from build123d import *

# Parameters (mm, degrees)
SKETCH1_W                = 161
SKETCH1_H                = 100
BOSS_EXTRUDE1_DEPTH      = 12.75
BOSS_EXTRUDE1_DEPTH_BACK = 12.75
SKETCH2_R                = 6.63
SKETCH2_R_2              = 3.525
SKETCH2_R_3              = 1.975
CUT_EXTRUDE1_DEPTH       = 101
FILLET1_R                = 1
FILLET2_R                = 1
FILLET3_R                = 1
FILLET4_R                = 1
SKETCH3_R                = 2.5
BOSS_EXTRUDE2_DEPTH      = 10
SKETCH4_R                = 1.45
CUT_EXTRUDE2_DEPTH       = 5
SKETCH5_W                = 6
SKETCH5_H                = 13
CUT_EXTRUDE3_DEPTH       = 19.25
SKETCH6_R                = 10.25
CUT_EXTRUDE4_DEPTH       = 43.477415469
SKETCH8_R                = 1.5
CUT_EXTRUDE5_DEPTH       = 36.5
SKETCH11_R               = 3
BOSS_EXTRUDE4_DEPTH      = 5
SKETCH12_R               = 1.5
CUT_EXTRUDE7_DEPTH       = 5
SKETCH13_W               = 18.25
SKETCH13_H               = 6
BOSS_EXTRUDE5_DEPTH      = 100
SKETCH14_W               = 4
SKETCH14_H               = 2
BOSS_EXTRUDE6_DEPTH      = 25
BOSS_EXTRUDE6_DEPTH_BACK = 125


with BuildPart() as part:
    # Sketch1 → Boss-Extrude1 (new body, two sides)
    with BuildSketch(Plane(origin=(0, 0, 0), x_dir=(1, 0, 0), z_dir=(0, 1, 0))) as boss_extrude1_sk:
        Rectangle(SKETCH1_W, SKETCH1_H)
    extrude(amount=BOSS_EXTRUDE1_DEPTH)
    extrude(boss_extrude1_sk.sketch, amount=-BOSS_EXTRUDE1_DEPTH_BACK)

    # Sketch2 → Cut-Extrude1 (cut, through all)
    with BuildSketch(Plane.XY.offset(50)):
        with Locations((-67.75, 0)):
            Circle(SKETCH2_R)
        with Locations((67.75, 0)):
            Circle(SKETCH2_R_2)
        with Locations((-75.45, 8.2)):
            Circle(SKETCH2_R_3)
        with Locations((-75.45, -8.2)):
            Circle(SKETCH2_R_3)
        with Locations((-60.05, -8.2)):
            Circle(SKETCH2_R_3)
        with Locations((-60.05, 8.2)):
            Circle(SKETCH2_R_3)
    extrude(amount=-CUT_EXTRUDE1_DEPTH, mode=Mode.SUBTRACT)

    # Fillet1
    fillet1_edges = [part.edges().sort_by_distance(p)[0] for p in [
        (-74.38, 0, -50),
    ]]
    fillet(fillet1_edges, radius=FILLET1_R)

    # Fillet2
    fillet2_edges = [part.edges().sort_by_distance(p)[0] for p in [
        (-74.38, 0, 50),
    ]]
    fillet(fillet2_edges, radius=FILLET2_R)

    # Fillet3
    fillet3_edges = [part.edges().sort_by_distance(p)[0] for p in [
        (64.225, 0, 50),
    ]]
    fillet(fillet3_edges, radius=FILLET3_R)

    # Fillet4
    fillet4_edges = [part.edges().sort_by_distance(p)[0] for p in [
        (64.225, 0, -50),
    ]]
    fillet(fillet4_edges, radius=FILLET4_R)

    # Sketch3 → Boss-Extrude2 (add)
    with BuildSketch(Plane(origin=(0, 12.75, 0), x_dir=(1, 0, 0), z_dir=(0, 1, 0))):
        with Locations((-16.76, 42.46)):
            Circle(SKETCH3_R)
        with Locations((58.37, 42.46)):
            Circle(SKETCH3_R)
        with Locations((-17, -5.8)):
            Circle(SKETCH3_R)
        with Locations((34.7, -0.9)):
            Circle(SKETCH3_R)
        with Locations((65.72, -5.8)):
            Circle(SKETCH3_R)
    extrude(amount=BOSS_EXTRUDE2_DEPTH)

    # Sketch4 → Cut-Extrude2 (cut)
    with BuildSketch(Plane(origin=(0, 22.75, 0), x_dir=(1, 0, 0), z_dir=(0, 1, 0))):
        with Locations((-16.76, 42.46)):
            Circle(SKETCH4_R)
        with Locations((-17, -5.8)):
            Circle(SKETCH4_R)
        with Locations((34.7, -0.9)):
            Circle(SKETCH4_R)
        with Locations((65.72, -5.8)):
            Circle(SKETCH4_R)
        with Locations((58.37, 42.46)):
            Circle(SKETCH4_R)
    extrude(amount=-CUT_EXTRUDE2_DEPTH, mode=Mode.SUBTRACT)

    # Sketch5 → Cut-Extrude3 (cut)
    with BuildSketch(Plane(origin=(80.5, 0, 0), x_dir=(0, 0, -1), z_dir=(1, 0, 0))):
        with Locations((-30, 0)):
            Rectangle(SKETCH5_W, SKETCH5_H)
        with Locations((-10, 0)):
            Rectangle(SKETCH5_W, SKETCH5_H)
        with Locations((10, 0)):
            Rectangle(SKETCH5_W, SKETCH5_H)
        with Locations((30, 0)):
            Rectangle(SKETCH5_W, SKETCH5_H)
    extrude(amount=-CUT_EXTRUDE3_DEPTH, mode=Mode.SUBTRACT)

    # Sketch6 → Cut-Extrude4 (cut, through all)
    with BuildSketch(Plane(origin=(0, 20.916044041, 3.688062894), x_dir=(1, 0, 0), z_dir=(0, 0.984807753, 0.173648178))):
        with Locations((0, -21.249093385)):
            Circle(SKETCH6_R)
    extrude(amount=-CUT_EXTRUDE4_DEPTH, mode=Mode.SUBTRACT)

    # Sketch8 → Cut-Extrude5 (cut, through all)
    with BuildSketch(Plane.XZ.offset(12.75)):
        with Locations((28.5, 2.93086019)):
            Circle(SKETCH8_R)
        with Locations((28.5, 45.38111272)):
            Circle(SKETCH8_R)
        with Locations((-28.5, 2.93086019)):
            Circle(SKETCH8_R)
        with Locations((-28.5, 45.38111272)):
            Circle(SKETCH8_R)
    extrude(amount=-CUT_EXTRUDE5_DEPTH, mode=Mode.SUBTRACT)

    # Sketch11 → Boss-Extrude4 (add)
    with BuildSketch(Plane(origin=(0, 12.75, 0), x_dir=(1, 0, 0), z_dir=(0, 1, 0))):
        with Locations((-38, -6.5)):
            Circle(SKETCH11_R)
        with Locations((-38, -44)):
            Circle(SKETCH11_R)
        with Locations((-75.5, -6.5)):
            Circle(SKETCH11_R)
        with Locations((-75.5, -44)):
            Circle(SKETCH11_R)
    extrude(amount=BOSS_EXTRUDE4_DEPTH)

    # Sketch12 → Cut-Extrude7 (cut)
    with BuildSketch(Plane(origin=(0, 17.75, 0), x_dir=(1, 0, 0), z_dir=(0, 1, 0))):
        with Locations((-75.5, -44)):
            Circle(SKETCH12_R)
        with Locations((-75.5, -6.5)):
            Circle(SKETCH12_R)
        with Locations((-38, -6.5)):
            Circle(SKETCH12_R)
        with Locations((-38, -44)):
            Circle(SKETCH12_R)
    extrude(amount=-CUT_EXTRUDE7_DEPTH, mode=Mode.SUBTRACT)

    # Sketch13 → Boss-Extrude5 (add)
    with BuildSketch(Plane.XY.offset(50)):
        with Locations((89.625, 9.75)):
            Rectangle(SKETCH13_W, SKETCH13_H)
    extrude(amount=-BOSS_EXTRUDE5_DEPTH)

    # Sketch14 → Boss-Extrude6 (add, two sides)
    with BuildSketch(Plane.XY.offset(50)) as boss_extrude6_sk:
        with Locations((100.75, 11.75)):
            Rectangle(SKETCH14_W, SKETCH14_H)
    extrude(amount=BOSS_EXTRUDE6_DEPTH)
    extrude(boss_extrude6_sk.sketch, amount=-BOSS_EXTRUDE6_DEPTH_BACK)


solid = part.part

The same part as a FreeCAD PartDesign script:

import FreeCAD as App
import Part
import Sketcher
from FreeCAD import Vector


def edges_at(feature, points):
    """Names of the edges that pass closest to the given points."""
    edges = feature.Shape.Edges
    near = lambda p: min(range(len(edges)), key=lambda i: edges[i].distToShape(Part.Vertex(*p))[0])
    return sorted({f"Edge{near(p) + 1}" for p in points})

doc = App.newDocument("Part")
body = doc.addObject("PartDesign::Body", "Body")

# Sketch on XZ plane
sketch1 = body.newObject("Sketcher::SketchObject", "Sketch")
sketch1.AttachmentSupport = (doc.getObject("XZ_Plane"), [""])
sketch1.MapMode = "FlatFace"
sketch1.addGeometry([
    Part.LineSegment(Vector(-80, -50, 0), Vector(-80, 50, 0)),
    Part.LineSegment(Vector(-80, 50, 0), Vector(80, 50, 0)),
    Part.LineSegment(Vector(80, 50, 0), Vector(80, -50, 0)),
    Part.LineSegment(Vector(80, -50, 0), Vector(-80, -50, 0)),
], False)
sketch1.addConstraint([
    Sketcher.Constraint("Coincident", 0, 2, 1, 1),
    Sketcher.Constraint("Coincident", 1, 2, 2, 1),
    Sketcher.Constraint("Coincident", 2, 2, 3, 1),
    Sketcher.Constraint("Coincident", 3, 2, 0, 1),
    Sketcher.Constraint("Vertical", 0),
    Sketcher.Constraint("Horizontal", 1),
    Sketcher.Constraint("Vertical", 2),
    Sketcher.Constraint("Horizontal", 3),
    Sketcher.Constraint("Symmetric", 0, 2, 2, 2, -1, 1),
    Sketcher.Constraint("DistanceX", 1, 1, 1, 2, 161.0),
    Sketcher.Constraint("DistanceY", 0, 1, 0, 2, 100.0),
])
pad1 = body.newObject("PartDesign::Pad", "Pad")
pad1.Profile = sketch1
pad1.Type = "TwoLengths"
pad1.Length = 12.75
pad1.Length2 = 12.75
pad1.Reversed = True

# Sketch on XY plane
sketch2 = body.newObject("Sketcher::SketchObject", "Sketch001")
sketch2.AttachmentSupport = (doc.getObject("XY_Plane"), [""])
sketch2.MapMode = "FlatFace"
sketch2.AttachmentOffset = App.Placement(Vector(0, 0, 50), App.Rotation())
sketch2.addGeometry([
    Part.Circle(Vector(-67.8, 0, 0), Vector(0, 0, 1), 6.6),  # 0
    Part.Circle(Vector(67.8, 0, 0), Vector(0, 0, 1), 3.5),  # 1
    Part.Circle(Vector(-75.5, 8.2, 0), Vector(0, 0, 1), 2),  # 2
    Part.Circle(Vector(-75.5, -8.2, 0), Vector(0, 0, 1), 2),  # 3
    Part.Circle(Vector(-60, -8.2, 0), Vector(0, 0, 1), 2),  # 4
    Part.Circle(Vector(-60, 8.2, 0), Vector(0, 0, 1), 2),  # 5
], False)
sketch2.addConstraint([
    Sketcher.Constraint("Equal", 2, 3),
    Sketcher.Constraint("Equal", 3, 4),
    Sketcher.Constraint("Equal", 4, 5),
    Sketcher.Constraint("Symmetric", 0, 3, 1, 3, -1, 1),
    Sketcher.Constraint("Symmetric", 2, 3, 3, 3, -1),
    Sketcher.Constraint("Symmetric", 4, 3, 5, 3, -1),
    Sketcher.Constraint("PointOnObject", 0, 3, -1),
    Sketcher.Constraint("Horizontal", 3, 3, 4, 3),
    Sketcher.Constraint("Diameter", 0, 13.26),
    Sketcher.Constraint("Diameter", 1, 7.05),
    Sketcher.Constraint("Diameter", 2, 3.95),
    Sketcher.Constraint("DistanceY", -1, 1, 2, 3, 8.2),
    Sketcher.Constraint("DistanceX", 0, 3, 1, 3, 135.5),
    Sketcher.Constraint("DistanceX", 2, 3, 0, 3, 7.7),
    Sketcher.Constraint("DistanceX", 0, 3, 4, 3, 7.7),
])
pocket1 = body.newObject("PartDesign::Pocket", "Pocket")
pocket1.Profile = sketch2
pocket1.Type = "ThroughAll"
doc.recompute()

fillet = body.newObject("PartDesign::Fillet", "Fillet")
fillet.Base = (pocket1, edges_at(pocket1, [(-74.38, 0, -50)]))
fillet.Radius = 1
doc.recompute()

fillet2 = body.newObject("PartDesign::Fillet", "Fillet001")
fillet2.Base = (fillet, edges_at(fillet, [(-74.38, 0, 50)]))
fillet2.Radius = 1
doc.recompute()

fillet3 = body.newObject("PartDesign::Fillet", "Fillet002")
fillet3.Base = (fillet2, edges_at(fillet2, [(64.225, 0, 50)]))
fillet3.Radius = 1
doc.recompute()

fillet4 = body.newObject("PartDesign::Fillet", "Fillet003")
fillet4.Base = (fillet3, edges_at(fillet3, [(64.225, 0, -50)]))
fillet4.Radius = 1

# Sketch on XZ plane
sketch3 = body.newObject("Sketcher::SketchObject", "Sketch002")
sketch3.AttachmentSupport = (doc.getObject("XZ_Plane"), [""])
sketch3.MapMode = "FlatFace"
sketch3.AttachmentOffset = App.Placement(Vector(0, 0, -12.75), App.Rotation())
sketch3.addGeometry([
    Part.Circle(Vector(-16.8, -42.5, 0), Vector(0, 0, 1), 2.5),  # 0
    Part.Circle(Vector(58.4, -42.5, 0), Vector(0, 0, 1), 2.5),  # 1
    Part.Circle(Vector(-17, 5.8, 0), Vector(0, 0, 1), 2.5),  # 2
    Part.Circle(Vector(34.7, 0.9, 0), Vector(0, 0, 1), 2.5),  # 3
    Part.Circle(Vector(65.7, 5.8, 0), Vector(0, 0, 1), 2.5),  # 4
], False)
sketch3.addConstraint([
    Sketcher.Constraint("Equal", 0, 1),
    Sketcher.Constraint("Equal", 1, 2),
    Sketcher.Constraint("Equal", 2, 3),
    Sketcher.Constraint("Equal", 3, 4),
    Sketcher.Constraint("Horizontal", 0, 3, 1, 3),
    Sketcher.Constraint("Horizontal", 2, 3, 4, 3),
    Sketcher.Constraint("Diameter", 0, 5.0),
    Sketcher.Constraint("DistanceX", 2, 3, -1, 1, 17.0),
    Sketcher.Constraint("DistanceY", -1, 1, 2, 3, 5.8),
    Sketcher.Constraint("DistanceX", -1, 1, 3, 3, 34.7),
    Sketcher.Constraint("DistanceY", -1, 1, 3, 3, 0.9),
    Sketcher.Constraint("DistanceX", 0, 3, -1, 1, 16.76),
    Sketcher.Constraint("DistanceY", 0, 3, -1, 1, 42.46),
    Sketcher.Constraint("DistanceX", -1, 1, 1, 3, 58.37),
    Sketcher.Constraint("DistanceX", -1, 1, 4, 3, 65.72),
])
pad2 = body.newObject("PartDesign::Pad", "Pad001")
pad2.Profile = sketch3
pad2.Length = 10
pad2.Reversed = True

# Sketch on XZ plane
sketch4 = body.newObject("Sketcher::SketchObject", "Sketch003")
sketch4.AttachmentSupport = (doc.getObject("XZ_Plane"), [""])
sketch4.MapMode = "FlatFace"
sketch4.AttachmentOffset = App.Placement(Vector(0, 0, -22.75), App.Rotation())
sketch4.addGeometry([
    Part.Circle(Vector(-16.8, -42.5, 0), Vector(0, 0, 1), 1.4),  # 0
    Part.Circle(Vector(-17, 5.8, 0), Vector(0, 0, 1), 1.4),  # 1
    Part.Circle(Vector(34.7, 0.9, 0), Vector(0, 0, 1), 1.4),  # 2
    Part.Circle(Vector(65.7, 5.8, 0), Vector(0, 0, 1), 1.4),  # 3
    Part.Circle(Vector(58.4, -42.5, 0), Vector(0, 0, 1), 1.4),  # 4
], False)
sketch4.addConstraint([
    Sketcher.Constraint("Equal", 0, 1),
    Sketcher.Constraint("Equal", 1, 2),
    Sketcher.Constraint("Equal", 2, 3),
    Sketcher.Constraint("Equal", 3, 4),
    Sketcher.Constraint("Horizontal", 1, 3, 3, 3),
    Sketcher.Constraint("Horizontal", 0, 3, 4, 3),
    Sketcher.Constraint("Diameter", 0, 2.9),
    Sketcher.Constraint("DistanceX", 1, 3, -1, 1, 17.0),
    Sketcher.Constraint("DistanceY", -1, 1, 1, 3, 5.8),
    Sketcher.Constraint("DistanceX", -1, 1, 2, 3, 34.7),
    Sketcher.Constraint("DistanceY", -1, 1, 2, 3, 0.9),
    Sketcher.Constraint("DistanceX", 0, 3, -1, 1, 16.76),
    Sketcher.Constraint("DistanceY", 0, 3, -1, 1, 42.46),
    Sketcher.Constraint("DistanceX", -1, 1, 3, 3, 65.72),
    Sketcher.Constraint("DistanceX", -1, 1, 4, 3, 58.37),
])
pocket2 = body.newObject("PartDesign::Pocket", "Pocket001")
pocket2.Profile = sketch4
pocket2.Length = 5
pocket2.Reversed = True

# Sketch on YZ plane
sketch5 = body.newObject("Sketcher::SketchObject", "Sketch004")
sketch5.AttachmentSupport = (doc.getObject("YZ_Plane"), [""])
sketch5.MapMode = "FlatFace"
sketch5.AttachmentOffset = App.Placement(Vector(0, 0, 80.5), App.Rotation())
sketch5.addGeometry([
    Part.LineSegment(Vector(6, 33, 0), Vector(-6, 33, 0)),  # 0
    Part.LineSegment(Vector(-6, 33, 0), Vector(-6, 27, 0)),  # 1
    Part.LineSegment(Vector(-6, 27, 0), Vector(6, 27, 0)),  # 2
    Part.LineSegment(Vector(6, 27, 0), Vector(6, 33, 0)),  # 3
    Part.LineSegment(Vector(6, 13, 0), Vector(-6, 13, 0)),  # 4
    Part.LineSegment(Vector(-6, 13, 0), Vector(-6, 7, 0)),  # 5
    Part.LineSegment(Vector(-6, 7, 0), Vector(6, 7, 0)),  # 6
    Part.LineSegment(Vector(6, 7, 0), Vector(6, 13, 0)),  # 7
    Part.LineSegment(Vector(6, -7, 0), Vector(-6, -7, 0)),  # 8
    Part.LineSegment(Vector(-6, -7, 0), Vector(-6, -13, 0)),  # 9
    Part.LineSegment(Vector(-6, -13, 0), Vector(6, -13, 0)),  # 10
    Part.LineSegment(Vector(6, -13, 0), Vector(6, -7, 0)),  # 11
    Part.LineSegment(Vector(6, -27, 0), Vector(-6, -27, 0)),  # 12
    Part.LineSegment(Vector(-6, -27, 0), Vector(-6, -33, 0)),  # 13
    Part.LineSegment(Vector(-6, -33, 0), Vector(6, -33, 0)),  # 14
    Part.LineSegment(Vector(6, -33, 0), Vector(6, -27, 0)),  # 15
], False)
sketch5.addConstraint([
    Sketcher.Constraint("Coincident", 0, 2, 1, 1),
    Sketcher.Constraint("Coincident", 1, 2, 2, 1),
    Sketcher.Constraint("Coincident", 2, 2, 3, 1),
    Sketcher.Constraint("Coincident", 3, 2, 0, 1),
    Sketcher.Constraint("Coincident", 4, 2, 5, 1),
    Sketcher.Constraint("Coincident", 5, 2, 6, 1),
    Sketcher.Constraint("Coincident", 6, 2, 7, 1),
    Sketcher.Constraint("Coincident", 7, 2, 4, 1),
    Sketcher.Constraint("Coincident", 8, 2, 9, 1),
    Sketcher.Constraint("Coincident", 9, 2, 10, 1),
    Sketcher.Constraint("Coincident", 10, 2, 11, 1),
    Sketcher.Constraint("Coincident", 11, 2, 8, 1),
    Sketcher.Constraint("Coincident", 12, 2, 13, 1),
    Sketcher.Constraint("Coincident", 13, 2, 14, 1),
    Sketcher.Constraint("Coincident", 14, 2, 15, 1),
    Sketcher.Constraint("Coincident", 15, 2, 12, 1),
    Sketcher.Constraint("Horizontal", 0),
    Sketcher.Constraint("Vertical", 1),
    Sketcher.Constraint("Horizontal", 2),
    Sketcher.Constraint("Vertical", 3),
    Sketcher.Constraint("Horizontal", 4),
    Sketcher.Constraint("Vertical", 5),
    Sketcher.Constraint("Horizontal", 6),
    Sketcher.Constraint("Vertical", 7),
    Sketcher.Constraint("Horizontal", 8),
    Sketcher.Constraint("Vertical", 9),
    Sketcher.Constraint("Horizontal", 10),
    Sketcher.Constraint("Vertical", 11),
    Sketcher.Constraint("Horizontal", 12),
    Sketcher.Constraint("Vertical", 13),
    Sketcher.Constraint("Horizontal", 14),
    Sketcher.Constraint("Vertical", 15),
    Sketcher.Constraint("Symmetric", 6, 2, 8, 2, -1, 1),
    Sketcher.Constraint("Symmetric", 4, 2, 10, 2, -1, 1),
    Sketcher.Constraint("Symmetric", 2, 2, 12, 2, -1, 1),
    Sketcher.Constraint("Symmetric", 0, 2, 14, 2, -1, 1),
    Sketcher.Constraint("Vertical", 1, 2, 4, 2),
    Sketcher.Constraint("Vertical", 3, 2, 6, 2),
    Sketcher.Constraint("Vertical", 5, 2, 8, 2),
    Sketcher.Constraint("Equal", 3, 5),
    Sketcher.Constraint("DistanceX", 0, 2, 0, 1, 13.0),
    Sketcher.Constraint("DistanceY", 1, 2, 1, 1, 6.0),
    Sketcher.Constraint("DistanceY", -1, 1, 0, 2, 33.0),
    Sketcher.Constraint("DistanceY", -1, 1, 4, 2, 13.0),
])
pocket3 = body.newObject("PartDesign::Pocket", "Pocket002")
pocket3.Profile = sketch5
pocket3.Length = 19.25

# Sketch on an angled plane
sketch6 = body.newObject("Sketcher::SketchObject", "Sketch005")
sketch6.Placement = App.Placement(Vector(0, 20.916044, 3.688063), App.Rotation(Vector(1, 0, 0), Vector(0, 0.173648178, -0.984807753), Vector(0, 0.984807753, 0.173648178), "ZXY"))
sketch6.addGeometry(Part.Circle(Vector(0, -21, 0), Vector(0, 0, 1), 10), False)
sketch6.addConstraint([
    Sketcher.Constraint("PointOnObject", 0, 3, -2),
    Sketcher.Constraint("Diameter", 0, 20.5),
    Sketcher.Constraint("DistanceY", 0, 3, -1, 1, 21.249093),
])
pocket4 = body.newObject("PartDesign::Pocket", "Pocket003")
pocket4.Profile = sketch6
pocket4.Type = "ThroughAll"

# Sketch on XZ plane
sketch7 = body.newObject("Sketcher::SketchObject", "Sketch006")
sketch7.AttachmentSupport = (doc.getObject("XZ_Plane"), [""])
sketch7.MapMode = "FlatFace"
sketch7.AttachmentOffset = App.Placement(Vector(0, 0, 12.75), App.Rotation())
sketch7.addGeometry([
    Part.Circle(Vector(28.5, 2.9, 0), Vector(0, 0, 1), 1.5),
    Part.Circle(Vector(28.5, 45.4, 0), Vector(0, 0, 1), 1.5),
    Part.Circle(Vector(-28.5, 2.9, 0), Vector(0, 0, 1), 1.5),
    Part.Circle(Vector(-28.5, 45.4, 0), Vector(0, 0, 1), 1.5),
], False)
sketch7.addConstraint([
    Sketcher.Constraint("Equal", 0, 1),
    Sketcher.Constraint("Equal", 1, 2),
    Sketcher.Constraint("Equal", 2, 3),
    Sketcher.Constraint("Symmetric", 0, 3, 2, 3, -2),
    Sketcher.Constraint("Symmetric", 1, 3, 3, 3, -2),
    Sketcher.Constraint("Vertical", 0, 3, 1, 3),
    Sketcher.Constraint("Diameter", 0, 3.0),
    Sketcher.Constraint("DistanceX", 2, 3, 0, 3, 57.0),
    Sketcher.Constraint("DistanceY", -1, 1, 0, 3, 2.93086),
    Sketcher.Constraint("DistanceY", -1, 1, 1, 3, 45.381113),
])
pocket5 = body.newObject("PartDesign::Pocket", "Pocket004")
pocket5.Profile = sketch7
pocket5.Type = "ThroughAll"

# Sketch on XZ plane
sketch8 = body.newObject("Sketcher::SketchObject", "Sketch007")
sketch8.AttachmentSupport = (doc.getObject("XZ_Plane"), [""])
sketch8.MapMode = "FlatFace"
sketch8.AttachmentOffset = App.Placement(Vector(0, 0, -12.75), App.Rotation())
sketch8.addGeometry([
    Part.Circle(Vector(-38, 6.5, 0), Vector(0, 0, 1), 3),
    Part.Circle(Vector(-38, 44, 0), Vector(0, 0, 1), 3),
    Part.Circle(Vector(-75.5, 6.5, 0), Vector(0, 0, 1), 3),
    Part.Circle(Vector(-75.5, 44, 0), Vector(0, 0, 1), 3),
], False)
sketch8.addConstraint([
    Sketcher.Constraint("Equal", 0, 1),
    Sketcher.Constraint("Equal", 1, 2),
    Sketcher.Constraint("Equal", 2, 3),
    Sketcher.Constraint("Horizontal", 0, 3, 2, 3),
    Sketcher.Constraint("Horizontal", 1, 3, 3, 3),
    Sketcher.Constraint("Vertical", 0, 3, 1, 3),
    Sketcher.Constraint("Vertical", 2, 3, 3, 3),
    Sketcher.Constraint("Diameter", 0, 6.0),
    Sketcher.Constraint("DistanceX", 0, 3, -1, 1, 38.0),
    Sketcher.Constraint("DistanceY", -1, 1, 1, 3, 44.0),
    Sketcher.Constraint("DistanceY", -1, 1, 0, 3, 6.5),
    Sketcher.Constraint("DistanceX", 2, 3, -1, 1, 75.5),
])
pad3 = body.newObject("PartDesign::Pad", "Pad002")
pad3.Profile = sketch8
pad3.Length = 5
pad3.Reversed = True

# Sketch on XZ plane
sketch9 = body.newObject("Sketcher::SketchObject", "Sketch008")
sketch9.AttachmentSupport = (doc.getObject("XZ_Plane"), [""])
sketch9.MapMode = "FlatFace"
sketch9.AttachmentOffset = App.Placement(Vector(0, 0, -17.75), App.Rotation())
sketch9.addGeometry([
    Part.Circle(Vector(-75.5, 44, 0), Vector(0, 0, 1), 1.5),
    Part.Circle(Vector(-75.5, 6.5, 0), Vector(0, 0, 1), 1.5),
    Part.Circle(Vector(-38, 6.5, 0), Vector(0, 0, 1), 1.5),
    Part.Circle(Vector(-38, 44, 0), Vector(0, 0, 1), 1.5),
], False)
sketch9.addConstraint([
    Sketcher.Constraint("Equal", 0, 1),
    Sketcher.Constraint("Equal", 1, 2),
    Sketcher.Constraint("Equal", 2, 3),
    Sketcher.Constraint("Horizontal", 1, 3, 2, 3),
    Sketcher.Constraint("Horizontal", 0, 3, 3, 3),
    Sketcher.Constraint("Vertical", 0, 3, 1, 3),
    Sketcher.Constraint("Vertical", 2, 3, 3, 3),
    Sketcher.Constraint("Diameter", 0, 3.0),
    Sketcher.Constraint("DistanceY", -1, 1, 0, 3, 44.0),
    Sketcher.Constraint("DistanceX", 2, 3, -1, 1, 38.0),
    Sketcher.Constraint("DistanceX", 0, 3, -1, 1, 75.5),
    Sketcher.Constraint("DistanceY", -1, 1, 1, 3, 6.5),
])
pocket6 = body.newObject("PartDesign::Pocket", "Pocket005")
pocket6.Profile = sketch9
pocket6.Length = 5
pocket6.Reversed = True

# Sketch on XY plane
sketch10 = body.newObject("Sketcher::SketchObject", "Sketch009")
sketch10.AttachmentSupport = (doc.getObject("XY_Plane"), [""])
sketch10.MapMode = "FlatFace"
sketch10.AttachmentOffset = App.Placement(Vector(0, 0, 50), App.Rotation())
sketch10.addGeometry([
    Part.LineSegment(Vector(80, 13, 0), Vector(80, 7, 0)),
    Part.LineSegment(Vector(80, 7, 0), Vector(99, 7, 0)),
    Part.LineSegment(Vector(99, 7, 0), Vector(99, 13, 0)),
    Part.LineSegment(Vector(99, 13, 0), Vector(80, 13, 0)),
], False)
sketch10.addConstraint([
    Sketcher.Constraint("Coincident", 0, 2, 1, 1),
    Sketcher.Constraint("Coincident", 1, 2, 2, 1),
    Sketcher.Constraint("Coincident", 2, 2, 3, 1),
    Sketcher.Constraint("Coincident", 3, 2, 0, 1),
    Sketcher.Constraint("Vertical", 0),
    Sketcher.Constraint("Horizontal", 1),
    Sketcher.Constraint("Vertical", 2),
    Sketcher.Constraint("Horizontal", 3),
    Sketcher.Constraint("DistanceY", 0, 2, 0, 1, 6.0),
    Sketcher.Constraint("DistanceX", 1, 1, 1, 2, 18.25),
    Sketcher.Constraint("DistanceX", -1, 1, 0, 2, 80.5),
    Sketcher.Constraint("DistanceY", -1, 1, 0, 2, 6.75),
])
pad4 = body.newObject("PartDesign::Pad", "Pad003")
pad4.Profile = sketch10
pad4.Length = 100
pad4.Reversed = True

# Sketch on XY plane
sketch11 = body.newObject("Sketcher::SketchObject", "Sketch010")
sketch11.AttachmentSupport = (doc.getObject("XY_Plane"), [""])
sketch11.MapMode = "FlatFace"
sketch11.AttachmentOffset = App.Placement(Vector(0, 0, 50), App.Rotation())
sketch11.addGeometry([
    Part.LineSegment(Vector(98.8, 12.8, 0), Vector(98.8, 10.8, 0)),
    Part.LineSegment(Vector(98.8, 10.8, 0), Vector(102.8, 10.8, 0)),
    Part.LineSegment(Vector(102.8, 10.8, 0), Vector(102.8, 12.8, 0)),
    Part.LineSegment(Vector(102.8, 12.8, 0), Vector(98.8, 12.8, 0)),
], False)
sketch11.addConstraint([
    Sketcher.Constraint("Coincident", 0, 2, 1, 1),
    Sketcher.Constraint("Coincident", 1, 2, 2, 1),
    Sketcher.Constraint("Coincident", 2, 2, 3, 1),
    Sketcher.Constraint("Coincident", 3, 2, 0, 1),
    Sketcher.Constraint("Vertical", 0),
    Sketcher.Constraint("Horizontal", 1),
    Sketcher.Constraint("Vertical", 2),
    Sketcher.Constraint("Horizontal", 3),
    Sketcher.Constraint("DistanceX", 1, 1, 1, 2, 4.0),
    Sketcher.Constraint("DistanceY", 0, 2, 0, 1, 2.0),
    Sketcher.Constraint("DistanceX", -1, 1, 0, 2, 98.75),
    Sketcher.Constraint("DistanceY", -1, 1, 0, 2, 10.75),
])
pad5 = body.newObject("PartDesign::Pad", "Pad004")
pad5.Profile = sketch11
pad5.Type = "TwoLengths"
pad5.Length = 25
pad5.Length2 = 125

doc.recompute()
